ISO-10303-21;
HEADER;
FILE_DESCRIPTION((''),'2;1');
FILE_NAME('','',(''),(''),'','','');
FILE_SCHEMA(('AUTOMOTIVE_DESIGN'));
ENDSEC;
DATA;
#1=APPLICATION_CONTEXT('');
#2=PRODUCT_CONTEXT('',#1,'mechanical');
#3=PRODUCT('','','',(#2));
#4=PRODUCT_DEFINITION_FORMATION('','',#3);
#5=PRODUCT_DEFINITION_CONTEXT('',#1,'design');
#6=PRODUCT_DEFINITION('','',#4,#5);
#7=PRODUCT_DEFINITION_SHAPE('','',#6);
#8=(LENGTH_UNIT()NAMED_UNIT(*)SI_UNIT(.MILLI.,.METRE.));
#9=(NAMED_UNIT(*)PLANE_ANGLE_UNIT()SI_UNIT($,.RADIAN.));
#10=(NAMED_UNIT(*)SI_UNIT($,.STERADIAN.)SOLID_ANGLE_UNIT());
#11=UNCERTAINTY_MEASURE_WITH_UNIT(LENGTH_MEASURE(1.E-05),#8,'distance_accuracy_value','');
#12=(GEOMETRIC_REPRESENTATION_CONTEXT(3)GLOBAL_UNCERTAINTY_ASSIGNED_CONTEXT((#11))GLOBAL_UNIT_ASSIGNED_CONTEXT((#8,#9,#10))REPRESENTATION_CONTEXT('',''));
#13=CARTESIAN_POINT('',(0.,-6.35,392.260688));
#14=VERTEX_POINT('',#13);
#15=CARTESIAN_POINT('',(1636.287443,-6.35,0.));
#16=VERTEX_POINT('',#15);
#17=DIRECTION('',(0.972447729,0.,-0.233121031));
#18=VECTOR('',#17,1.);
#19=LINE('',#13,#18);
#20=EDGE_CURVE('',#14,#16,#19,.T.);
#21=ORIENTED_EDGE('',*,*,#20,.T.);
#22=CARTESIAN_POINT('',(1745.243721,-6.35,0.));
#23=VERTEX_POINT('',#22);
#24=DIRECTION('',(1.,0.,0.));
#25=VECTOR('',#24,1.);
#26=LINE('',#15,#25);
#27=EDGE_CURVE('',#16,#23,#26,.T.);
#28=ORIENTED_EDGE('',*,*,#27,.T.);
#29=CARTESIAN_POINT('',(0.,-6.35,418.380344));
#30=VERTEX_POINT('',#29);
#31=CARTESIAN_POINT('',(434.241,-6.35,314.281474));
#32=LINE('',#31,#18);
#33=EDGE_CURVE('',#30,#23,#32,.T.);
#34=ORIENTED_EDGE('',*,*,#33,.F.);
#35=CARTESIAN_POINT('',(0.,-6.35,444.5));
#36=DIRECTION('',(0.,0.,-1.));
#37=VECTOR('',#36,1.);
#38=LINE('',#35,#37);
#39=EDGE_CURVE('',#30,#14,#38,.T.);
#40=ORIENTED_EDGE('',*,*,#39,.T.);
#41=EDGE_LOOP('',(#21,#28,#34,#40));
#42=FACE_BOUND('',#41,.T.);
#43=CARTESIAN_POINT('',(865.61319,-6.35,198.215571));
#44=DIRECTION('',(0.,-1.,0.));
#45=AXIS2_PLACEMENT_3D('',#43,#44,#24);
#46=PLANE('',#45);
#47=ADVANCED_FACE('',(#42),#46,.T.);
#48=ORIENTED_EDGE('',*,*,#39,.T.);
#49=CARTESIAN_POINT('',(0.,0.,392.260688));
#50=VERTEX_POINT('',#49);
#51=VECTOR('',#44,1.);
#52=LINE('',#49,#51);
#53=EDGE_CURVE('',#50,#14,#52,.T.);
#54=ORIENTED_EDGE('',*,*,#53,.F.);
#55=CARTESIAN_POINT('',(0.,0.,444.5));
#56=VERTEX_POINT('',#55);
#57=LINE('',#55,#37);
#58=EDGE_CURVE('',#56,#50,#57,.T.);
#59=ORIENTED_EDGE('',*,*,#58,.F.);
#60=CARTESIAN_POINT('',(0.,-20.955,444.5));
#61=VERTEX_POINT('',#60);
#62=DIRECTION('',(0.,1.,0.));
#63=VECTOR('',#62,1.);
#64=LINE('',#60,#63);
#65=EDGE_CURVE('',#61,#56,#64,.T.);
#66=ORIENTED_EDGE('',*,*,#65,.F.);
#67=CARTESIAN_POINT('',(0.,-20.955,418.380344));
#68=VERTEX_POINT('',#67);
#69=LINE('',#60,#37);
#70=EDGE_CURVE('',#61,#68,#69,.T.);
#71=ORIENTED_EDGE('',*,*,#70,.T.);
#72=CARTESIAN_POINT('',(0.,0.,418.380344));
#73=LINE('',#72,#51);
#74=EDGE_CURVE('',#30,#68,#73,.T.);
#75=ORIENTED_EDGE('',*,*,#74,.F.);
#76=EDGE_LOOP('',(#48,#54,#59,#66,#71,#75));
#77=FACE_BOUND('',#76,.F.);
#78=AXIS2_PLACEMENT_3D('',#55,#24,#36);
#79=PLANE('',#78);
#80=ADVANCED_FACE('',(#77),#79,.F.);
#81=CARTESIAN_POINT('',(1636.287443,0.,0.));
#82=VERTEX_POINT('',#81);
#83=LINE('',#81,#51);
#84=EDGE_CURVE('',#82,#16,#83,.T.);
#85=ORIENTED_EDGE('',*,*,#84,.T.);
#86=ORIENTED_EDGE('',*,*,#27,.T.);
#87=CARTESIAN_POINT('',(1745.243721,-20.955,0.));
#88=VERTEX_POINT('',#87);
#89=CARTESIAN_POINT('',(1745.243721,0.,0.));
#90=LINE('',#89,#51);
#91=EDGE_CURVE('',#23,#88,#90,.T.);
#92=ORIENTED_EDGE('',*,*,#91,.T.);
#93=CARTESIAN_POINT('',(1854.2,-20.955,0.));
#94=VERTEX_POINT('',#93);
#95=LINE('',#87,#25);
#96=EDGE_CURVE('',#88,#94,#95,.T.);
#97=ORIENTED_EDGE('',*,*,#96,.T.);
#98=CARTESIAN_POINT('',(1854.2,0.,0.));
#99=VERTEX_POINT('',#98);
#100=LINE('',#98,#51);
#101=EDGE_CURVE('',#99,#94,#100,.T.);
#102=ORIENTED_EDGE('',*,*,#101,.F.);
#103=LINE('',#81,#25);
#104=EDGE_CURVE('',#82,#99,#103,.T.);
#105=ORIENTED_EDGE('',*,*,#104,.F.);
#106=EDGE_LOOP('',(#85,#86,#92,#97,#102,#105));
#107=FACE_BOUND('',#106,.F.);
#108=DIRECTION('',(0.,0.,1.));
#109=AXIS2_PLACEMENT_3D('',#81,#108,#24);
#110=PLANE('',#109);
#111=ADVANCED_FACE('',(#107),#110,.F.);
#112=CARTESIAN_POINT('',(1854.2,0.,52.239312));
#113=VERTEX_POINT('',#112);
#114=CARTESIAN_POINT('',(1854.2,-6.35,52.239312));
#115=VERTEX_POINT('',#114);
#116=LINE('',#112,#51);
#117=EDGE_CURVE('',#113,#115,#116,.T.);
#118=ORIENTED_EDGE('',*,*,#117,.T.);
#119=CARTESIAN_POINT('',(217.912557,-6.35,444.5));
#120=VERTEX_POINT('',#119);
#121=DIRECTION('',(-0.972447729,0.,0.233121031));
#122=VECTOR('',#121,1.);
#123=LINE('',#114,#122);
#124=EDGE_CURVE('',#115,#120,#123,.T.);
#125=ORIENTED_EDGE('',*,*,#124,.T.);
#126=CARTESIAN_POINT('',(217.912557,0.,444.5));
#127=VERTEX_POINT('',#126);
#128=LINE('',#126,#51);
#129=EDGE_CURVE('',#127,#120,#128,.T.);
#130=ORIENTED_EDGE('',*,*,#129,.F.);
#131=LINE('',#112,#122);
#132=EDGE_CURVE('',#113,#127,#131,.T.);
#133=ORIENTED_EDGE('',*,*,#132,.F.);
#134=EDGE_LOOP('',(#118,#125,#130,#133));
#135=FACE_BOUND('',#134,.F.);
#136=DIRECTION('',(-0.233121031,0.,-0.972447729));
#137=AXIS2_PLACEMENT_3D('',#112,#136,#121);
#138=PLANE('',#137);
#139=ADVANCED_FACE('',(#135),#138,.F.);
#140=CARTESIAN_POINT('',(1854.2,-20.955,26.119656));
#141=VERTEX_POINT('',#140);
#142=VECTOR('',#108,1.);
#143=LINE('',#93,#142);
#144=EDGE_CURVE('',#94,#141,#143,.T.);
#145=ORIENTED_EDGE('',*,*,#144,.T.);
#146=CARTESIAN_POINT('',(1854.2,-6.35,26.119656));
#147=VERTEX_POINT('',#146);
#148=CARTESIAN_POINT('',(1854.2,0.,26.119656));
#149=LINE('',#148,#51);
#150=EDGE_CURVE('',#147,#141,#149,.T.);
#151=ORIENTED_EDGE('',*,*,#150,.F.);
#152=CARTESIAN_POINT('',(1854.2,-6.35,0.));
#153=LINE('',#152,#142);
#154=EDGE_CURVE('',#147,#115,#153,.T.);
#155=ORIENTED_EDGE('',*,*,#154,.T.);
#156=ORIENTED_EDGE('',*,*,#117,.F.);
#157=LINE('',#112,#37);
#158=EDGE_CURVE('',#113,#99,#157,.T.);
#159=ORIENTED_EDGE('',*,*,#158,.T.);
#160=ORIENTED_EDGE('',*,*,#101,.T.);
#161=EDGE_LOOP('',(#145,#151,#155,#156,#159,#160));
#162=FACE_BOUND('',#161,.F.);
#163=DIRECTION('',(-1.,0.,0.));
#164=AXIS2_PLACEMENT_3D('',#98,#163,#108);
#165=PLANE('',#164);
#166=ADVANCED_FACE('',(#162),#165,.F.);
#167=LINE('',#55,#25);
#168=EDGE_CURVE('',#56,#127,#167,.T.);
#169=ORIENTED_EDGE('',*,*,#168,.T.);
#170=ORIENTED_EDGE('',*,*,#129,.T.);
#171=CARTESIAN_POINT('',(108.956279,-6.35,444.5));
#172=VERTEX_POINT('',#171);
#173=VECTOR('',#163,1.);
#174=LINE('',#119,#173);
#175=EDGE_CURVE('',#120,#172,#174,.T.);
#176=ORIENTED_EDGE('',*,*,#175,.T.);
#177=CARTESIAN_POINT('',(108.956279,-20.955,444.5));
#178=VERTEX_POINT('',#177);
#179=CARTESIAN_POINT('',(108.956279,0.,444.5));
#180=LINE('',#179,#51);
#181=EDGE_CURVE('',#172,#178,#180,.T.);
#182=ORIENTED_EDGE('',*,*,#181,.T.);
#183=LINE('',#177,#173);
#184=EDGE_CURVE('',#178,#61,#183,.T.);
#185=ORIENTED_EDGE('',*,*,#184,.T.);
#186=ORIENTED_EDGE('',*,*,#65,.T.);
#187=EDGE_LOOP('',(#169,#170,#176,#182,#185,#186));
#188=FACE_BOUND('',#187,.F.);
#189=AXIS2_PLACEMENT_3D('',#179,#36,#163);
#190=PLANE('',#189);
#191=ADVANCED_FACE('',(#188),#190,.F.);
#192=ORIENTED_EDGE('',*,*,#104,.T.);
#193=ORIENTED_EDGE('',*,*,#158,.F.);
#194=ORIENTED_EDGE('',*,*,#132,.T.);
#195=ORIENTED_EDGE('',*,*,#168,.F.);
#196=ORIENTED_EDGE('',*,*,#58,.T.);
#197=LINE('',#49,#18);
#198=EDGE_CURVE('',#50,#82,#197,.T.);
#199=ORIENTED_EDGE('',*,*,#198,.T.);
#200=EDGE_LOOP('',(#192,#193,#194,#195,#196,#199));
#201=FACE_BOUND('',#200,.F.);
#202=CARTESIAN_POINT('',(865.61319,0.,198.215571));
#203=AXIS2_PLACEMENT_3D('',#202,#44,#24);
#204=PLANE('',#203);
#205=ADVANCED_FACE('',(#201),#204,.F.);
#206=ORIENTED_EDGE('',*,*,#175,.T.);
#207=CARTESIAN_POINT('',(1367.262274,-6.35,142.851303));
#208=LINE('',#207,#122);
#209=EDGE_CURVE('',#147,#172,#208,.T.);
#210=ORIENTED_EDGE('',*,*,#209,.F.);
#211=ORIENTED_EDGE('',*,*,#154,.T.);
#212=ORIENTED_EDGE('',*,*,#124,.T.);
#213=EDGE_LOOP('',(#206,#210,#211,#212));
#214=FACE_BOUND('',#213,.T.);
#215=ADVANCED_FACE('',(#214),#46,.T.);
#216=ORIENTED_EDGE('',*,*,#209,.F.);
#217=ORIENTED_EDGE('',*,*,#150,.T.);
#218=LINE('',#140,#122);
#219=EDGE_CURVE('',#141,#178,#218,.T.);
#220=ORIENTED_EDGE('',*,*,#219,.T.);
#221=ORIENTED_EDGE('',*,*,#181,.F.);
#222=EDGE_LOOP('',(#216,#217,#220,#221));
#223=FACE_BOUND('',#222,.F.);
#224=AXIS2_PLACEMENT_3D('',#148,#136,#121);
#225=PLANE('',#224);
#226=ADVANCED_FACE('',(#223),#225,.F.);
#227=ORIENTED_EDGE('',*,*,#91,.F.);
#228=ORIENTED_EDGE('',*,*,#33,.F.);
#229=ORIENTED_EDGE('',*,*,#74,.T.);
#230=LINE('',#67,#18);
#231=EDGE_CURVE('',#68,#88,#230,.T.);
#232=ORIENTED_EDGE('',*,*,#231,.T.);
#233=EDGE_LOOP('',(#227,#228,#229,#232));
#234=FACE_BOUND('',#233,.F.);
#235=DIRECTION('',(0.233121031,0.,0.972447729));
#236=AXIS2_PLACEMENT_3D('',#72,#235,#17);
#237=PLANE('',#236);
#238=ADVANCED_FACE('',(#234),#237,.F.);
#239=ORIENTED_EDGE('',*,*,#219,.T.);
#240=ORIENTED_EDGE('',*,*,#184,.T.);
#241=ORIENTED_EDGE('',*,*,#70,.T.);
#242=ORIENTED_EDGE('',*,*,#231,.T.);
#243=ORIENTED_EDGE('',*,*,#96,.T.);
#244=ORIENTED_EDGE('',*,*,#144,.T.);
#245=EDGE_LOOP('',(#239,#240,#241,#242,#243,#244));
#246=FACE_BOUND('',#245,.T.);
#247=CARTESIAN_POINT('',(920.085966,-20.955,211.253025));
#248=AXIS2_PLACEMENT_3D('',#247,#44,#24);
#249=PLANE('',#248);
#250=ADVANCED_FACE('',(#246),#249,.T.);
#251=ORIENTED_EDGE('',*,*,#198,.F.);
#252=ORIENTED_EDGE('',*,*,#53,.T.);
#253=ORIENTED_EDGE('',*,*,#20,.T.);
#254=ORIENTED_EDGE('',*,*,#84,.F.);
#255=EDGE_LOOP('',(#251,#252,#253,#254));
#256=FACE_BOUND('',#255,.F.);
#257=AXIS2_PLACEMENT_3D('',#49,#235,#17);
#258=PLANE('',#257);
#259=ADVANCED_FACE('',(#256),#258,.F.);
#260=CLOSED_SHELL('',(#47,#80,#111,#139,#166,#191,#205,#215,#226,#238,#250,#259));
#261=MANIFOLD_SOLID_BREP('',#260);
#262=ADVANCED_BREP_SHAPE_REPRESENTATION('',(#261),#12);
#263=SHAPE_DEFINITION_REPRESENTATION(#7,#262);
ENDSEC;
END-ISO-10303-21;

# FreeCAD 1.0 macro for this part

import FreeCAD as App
import Part
import Sketcher
Q = App.Units.Quantity


def add_polygon(sketch, points):
    """Adds a closed chain of lines whose ends are joined by coincident constraints."""
    first, n = sketch.GeometryCount, len(points)
    for a, b in zip(points, points[1:] + points[:1]):
        sketch.addGeometry(Part.LineSegment(App.Vector(*a, 0), App.Vector(*b, 0)), False)
    for i in range(n):
        sketch.addConstraint(Sketcher.Constraint("Coincident", first + i, 2, first + (i + 1) % n, 1))

doc = App.newDocument("Part")
params = doc.addObject("Spreadsheet::Sheet", "Params")
for row, (alias, value) in enumerate([
    ("pad1_length", "0.825 in"),
    ("pad2_length", "0.25 in"),
], start=1):
    params.set(f"A{row}", alias)
    params.set(f"B{row}", "=" + value)
    params.setAlias(f"B{row}", alias)

body = doc.addObject("PartDesign::Body", "Body")

# Sketch on XZ plane
sketch1 = body.newObject("Sketcher::SketchObject", "Sketch")
sketch1.AttachmentSupport = (doc.getObject("XZ_Plane"), [""])
sketch1.MapMode = "FlatFace"
add_polygon(sketch1, [(0, 418), (1745, 0), (1854, 0), (1854, 26), (109, 444), (0, 444)])  # lines 0-5
sketch1.addConstraint(Sketcher.Constraint("Horizontal", 1))
sketch1.addConstraint(Sketcher.Constraint("Vertical", 2))
sketch1.addConstraint(Sketcher.Constraint("Horizontal", 4))
sketch1.addConstraint(Sketcher.Constraint("Vertical", 5))
sketch1.addConstraint(Sketcher.Constraint("PointOnObject", 0, 2, -1))
sketch1.addConstraint(Sketcher.Constraint("PointOnObject", 4, 2, -2))
sketch1.addConstraint(Sketcher.Constraint("Parallel", 0, 3))
sketch1.addConstraint(Sketcher.Constraint("Equal", 1, 4))
sketch1.addConstraint(Sketcher.Constraint("DistanceX", -1, 1, 1, 2, Q("73 in")))
sketch1.addConstraint(Sketcher.Constraint("DistanceY", -1, 1, 3, 2, Q("17.5 in")))
sketch1.addConstraint(Sketcher.Constraint("DistanceX", 1, 1, 1, 2, 108.956279))
sketch1.addConstraint(Sketcher.Constraint("Distance", 0, 1794.69155))
pad1 = body.newObject("PartDesign::Pad", "Pad")
pad1.Profile = sketch1
pad1.setExpression("Length", "Params.pad1_length")

# Sketch on XZ plane
sketch2 = body.newObject("Sketcher::SketchObject", "Sketch001")
sketch2.AttachmentSupport = (doc.getObject("XZ_Plane"), [""])
sketch2.MapMode = "FlatFace"
add_polygon(sketch2, [(0, 392), (1636, 0), (1854, 0), (1854, 52), (218, 444), (0, 444)])  # lines 0-5
sketch2.addConstraint(Sketcher.Constraint("Horizontal", 1))
sketch2.addConstraint(Sketcher.Constraint("Vertical", 2))
sketch2.addConstraint(Sketcher.Constraint("Horizontal", 4))
sketch2.addConstraint(Sketcher.Constraint("Vertical", 5))
sketch2.addConstraint(Sketcher.Constraint("PointOnObject", 0, 2, -1))
sketch2.addConstraint(Sketcher.Constraint("PointOnObject", 4, 2, -2))
sketch2.addConstraint(Sketcher.Constraint("Parallel", 0, 3))
sketch2.addConstraint(Sketcher.Constraint("Equal", 1, 4))
sketch2.addConstraint(Sketcher.Constraint("DistanceX", -1, 1, 1, 2, Q("73 in")))
sketch2.addConstraint(Sketcher.Constraint("DistanceY", -1, 1, 3, 2, Q("17.5 in")))
sketch2.addConstraint(Sketcher.Constraint("DistanceY", 2, 1, 2, 2, 52.239312))
sketch2.addConstraint(Sketcher.Constraint("DistanceX", 1, 1, 1, 2, 217.912557))
pad2 = body.newObject("PartDesign::Pad", "Pad001")
pad2.Profile = sketch2
pad2.setExpression("Length", "Params.pad2_length")

doc.recompute()
